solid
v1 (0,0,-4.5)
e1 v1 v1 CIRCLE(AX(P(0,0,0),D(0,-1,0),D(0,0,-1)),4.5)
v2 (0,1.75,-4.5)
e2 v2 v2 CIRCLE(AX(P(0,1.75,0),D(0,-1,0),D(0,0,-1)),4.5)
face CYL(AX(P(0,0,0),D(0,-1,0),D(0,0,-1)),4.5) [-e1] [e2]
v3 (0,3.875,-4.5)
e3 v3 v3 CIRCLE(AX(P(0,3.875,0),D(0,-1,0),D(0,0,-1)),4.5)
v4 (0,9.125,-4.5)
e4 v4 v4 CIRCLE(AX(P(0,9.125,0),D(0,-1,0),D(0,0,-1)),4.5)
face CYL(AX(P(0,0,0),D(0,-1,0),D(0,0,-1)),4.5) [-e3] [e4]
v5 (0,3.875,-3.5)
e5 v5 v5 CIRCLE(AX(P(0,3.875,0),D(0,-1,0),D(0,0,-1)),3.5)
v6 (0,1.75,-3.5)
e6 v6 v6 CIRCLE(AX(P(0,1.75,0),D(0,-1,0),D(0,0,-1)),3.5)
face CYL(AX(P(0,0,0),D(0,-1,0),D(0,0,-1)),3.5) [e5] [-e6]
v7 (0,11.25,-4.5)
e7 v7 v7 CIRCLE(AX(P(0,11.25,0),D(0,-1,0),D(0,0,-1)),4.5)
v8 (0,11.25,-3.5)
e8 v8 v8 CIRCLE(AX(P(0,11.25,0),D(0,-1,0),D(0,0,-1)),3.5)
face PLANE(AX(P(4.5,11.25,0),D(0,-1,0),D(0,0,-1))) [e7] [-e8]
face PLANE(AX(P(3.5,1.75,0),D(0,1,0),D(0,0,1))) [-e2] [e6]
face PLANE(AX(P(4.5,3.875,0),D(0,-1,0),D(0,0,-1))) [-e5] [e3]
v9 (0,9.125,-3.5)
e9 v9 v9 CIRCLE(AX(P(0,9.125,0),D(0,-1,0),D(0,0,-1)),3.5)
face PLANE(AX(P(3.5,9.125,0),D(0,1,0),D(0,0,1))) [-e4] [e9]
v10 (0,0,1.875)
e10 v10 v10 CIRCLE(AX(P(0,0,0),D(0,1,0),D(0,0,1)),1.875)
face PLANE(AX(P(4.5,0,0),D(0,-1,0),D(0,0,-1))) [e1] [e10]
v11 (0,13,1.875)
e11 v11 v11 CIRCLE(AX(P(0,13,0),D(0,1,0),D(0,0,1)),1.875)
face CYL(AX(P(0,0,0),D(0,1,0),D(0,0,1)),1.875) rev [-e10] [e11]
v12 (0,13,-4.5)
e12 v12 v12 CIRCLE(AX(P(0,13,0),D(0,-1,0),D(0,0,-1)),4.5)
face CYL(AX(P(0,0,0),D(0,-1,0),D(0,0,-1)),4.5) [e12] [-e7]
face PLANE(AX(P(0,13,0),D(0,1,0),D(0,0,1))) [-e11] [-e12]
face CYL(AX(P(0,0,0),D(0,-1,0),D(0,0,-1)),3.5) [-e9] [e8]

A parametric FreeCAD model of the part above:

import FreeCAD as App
import Part
import Sketcher

doc = App.newDocument("Part")
params = doc.addObject("Spreadsheet::Sheet", "Params")
for row, (alias, value) in enumerate([
    ("sketch1_width", "1 mm"),
    ("sketch1_height", "13 mm"),
    ("sketch1_width2", "4.5 mm"),
    ("sketch1_height2", "1.75 mm"),
    ("sketch1_height3", "5.25 mm"),
    ("revolution_angle", "360 deg"),
    ("sketch2_diameter", "3.75 mm"),
], start=1):
    params.set(f"A{row}", alias)
    params.set(f"B{row}", "=" + value)
    params.setAlias(f"B{row}", alias)

body = doc.addObject("PartDesign::Body", "Body")

sketch1 = body.newObject("Sketcher::SketchObject", "Sketch")
sketch1.AttachmentSupport = (doc.getObject("XY_Plane"), [""])
sketch1.MapMode = "FlatFace"
sketch1.addGeometry([
    Part.LineSegment(App.Vector(0, 13, 0), App.Vector(0, 0, 0)),
    Part.LineSegment(App.Vector(0, 0, 0), App.Vector(4.5, 0, 0)),
    Part.LineSegment(App.Vector(4.5, 0, 0), App.Vector(4.5, 1.75, 0)),
    Part.LineSegment(App.Vector(4.5, 1.75, 0), App.Vector(3.5, 1.75, 0)),
    Part.LineSegment(App.Vector(3.5, 1.75, 0), App.Vector(3.5, 3.875, 0)),
    Part.LineSegment(App.Vector(3.5, 3.875, 0), App.Vector(4.5, 3.875, 0)),
    Part.LineSegment(App.Vector(4.5, 3.875, 0), App.Vector(4.5, 9.125, 0)),
    Part.LineSegment(App.Vector(4.5, 9.125, 0), App.Vector(3.5, 9.125, 0)),
    Part.LineSegment(App.Vector(3.5, 9.125, 0), App.Vector(3.5, 11.25, 0)),
    Part.LineSegment(App.Vector(3.5, 11.25, 0), App.Vector(4.5, 11.25, 0)),
    Part.LineSegment(App.Vector(4.5, 11.25, 0), App.Vector(4.5, 13, 0)),
    Part.LineSegment(App.Vector(4.5, 13, 0), App.Vector(0, 13, 0)),
], False)
sketch1.addConstraint([
    Sketcher.Constraint("Coincident", 0, 2, 1, 1),
    Sketcher.Constraint("Coincident", 1, 2, 2, 1),
    Sketcher.Constraint("Coincident", 2, 2, 3, 1),
    Sketcher.Constraint("Coincident", 3, 2, 4, 1),
    Sketcher.Constraint("Coincident", 4, 2, 5, 1),
    Sketcher.Constraint("Coincident", 5, 2, 6, 1),
    Sketcher.Constraint("Coincident", 6, 2, 7, 1),
    Sketcher.Constraint("Coincident", 7, 2, 8, 1),
    Sketcher.Constraint("Coincident", 8, 2, 9, 1),
    Sketcher.Constraint("Coincident", 9, 2, 10, 1),
    Sketcher.Constraint("Coincident", 10, 2, 11, 1),
    Sketcher.Constraint("Coincident", 11, 2, 0, 1),
    Sketcher.Constraint("Vertical", 0),
    Sketcher.Constraint("Horizontal", 1),
    Sketcher.Constraint("Vertical", 2),
    Sketcher.Constraint("Horizontal", 3),
    Sketcher.Constraint("Vertical", 4),
    Sketcher.Constraint("Horizontal", 5),
    Sketcher.Constraint("Vertical", 6),
    Sketcher.Constraint("Horizontal", 7),
    Sketcher.Constraint("Vertical", 8),
    Sketcher.Constraint("Horizontal", 9),
    Sketcher.Constraint("Vertical", 10),
    Sketcher.Constraint("Horizontal", 11),
    Sketcher.Constraint("Coincident", 0, 2, -1, 1),
    Sketcher.Constraint("Vertical", 2, 2, 5, 2),
    Sketcher.Constraint("Vertical", 4, 2, 7, 2),
    Sketcher.Constraint("Vertical", 6, 2, 9, 2),
    Sketcher.Constraint("Equal", 4, 8),
    Sketcher.Constraint("Equal", 2, 10),
    Sketcher.Constraint("DistanceX", 3, 2, 3, 1, 1.0),
    Sketcher.Constraint("DistanceY", 0, 2, 0, 1, 13.0),
    Sketcher.Constraint("DistanceX", 1, 1, 1, 2, 4.5),
    Sketcher.Constraint("DistanceY", 2, 1, 2, 2, 1.75),
    Sketcher.Constraint("DistanceY", 6, 1, 6, 2, 5.25),
])
sketch1.setExpression("Constraints[30]", "Params.sketch1_width")
sketch1.setExpression("Constraints[31]", "Params.sketch1_height")
sketch1.setExpression("Constraints[32]", "Params.sketch1_width2")
sketch1.setExpression("Constraints[33]", "Params.sketch1_height2")
sketch1.setExpression("Constraints[34]", "Params.sketch1_height3")
revolution = body.newObject("PartDesign::Revolution", "Revolution")
revolution.Profile = sketch1
revolution.ReferenceAxis = (sketch1, ["V_Axis"])
revolution.setExpression("Angle", "Params.revolution_angle")

sketch2 = body.newObject("Sketcher::SketchObject", "Sketch001")
sketch2.AttachmentSupport = (doc.getObject("XZ_Plane"), [""])
sketch2.MapMode = "FlatFace"
sketch2.AttachmentOffset = App.Placement(App.Vector(0, 0, -13), App.Rotation())
sketch2.addGeometry(Part.Circle(App.Vector(0, 0, 0), App.Vector(0, 0, 1), 1.875), False)
sketch2.addConstraint([
    Sketcher.Constraint("Coincident", 0, 3, -1, 1),
    Sketcher.Constraint("Diameter", 0, 3.75),
])
sketch2.setExpression("Constraints[1]", "Params.sketch2_diameter")
pocket1 = body.newObject("PartDesign::Pocket", "Pocket")
pocket1.Profile = sketch2
pocket1.Type = "ThroughAll"
pocket1.Midplane = True

doc.recompute()
